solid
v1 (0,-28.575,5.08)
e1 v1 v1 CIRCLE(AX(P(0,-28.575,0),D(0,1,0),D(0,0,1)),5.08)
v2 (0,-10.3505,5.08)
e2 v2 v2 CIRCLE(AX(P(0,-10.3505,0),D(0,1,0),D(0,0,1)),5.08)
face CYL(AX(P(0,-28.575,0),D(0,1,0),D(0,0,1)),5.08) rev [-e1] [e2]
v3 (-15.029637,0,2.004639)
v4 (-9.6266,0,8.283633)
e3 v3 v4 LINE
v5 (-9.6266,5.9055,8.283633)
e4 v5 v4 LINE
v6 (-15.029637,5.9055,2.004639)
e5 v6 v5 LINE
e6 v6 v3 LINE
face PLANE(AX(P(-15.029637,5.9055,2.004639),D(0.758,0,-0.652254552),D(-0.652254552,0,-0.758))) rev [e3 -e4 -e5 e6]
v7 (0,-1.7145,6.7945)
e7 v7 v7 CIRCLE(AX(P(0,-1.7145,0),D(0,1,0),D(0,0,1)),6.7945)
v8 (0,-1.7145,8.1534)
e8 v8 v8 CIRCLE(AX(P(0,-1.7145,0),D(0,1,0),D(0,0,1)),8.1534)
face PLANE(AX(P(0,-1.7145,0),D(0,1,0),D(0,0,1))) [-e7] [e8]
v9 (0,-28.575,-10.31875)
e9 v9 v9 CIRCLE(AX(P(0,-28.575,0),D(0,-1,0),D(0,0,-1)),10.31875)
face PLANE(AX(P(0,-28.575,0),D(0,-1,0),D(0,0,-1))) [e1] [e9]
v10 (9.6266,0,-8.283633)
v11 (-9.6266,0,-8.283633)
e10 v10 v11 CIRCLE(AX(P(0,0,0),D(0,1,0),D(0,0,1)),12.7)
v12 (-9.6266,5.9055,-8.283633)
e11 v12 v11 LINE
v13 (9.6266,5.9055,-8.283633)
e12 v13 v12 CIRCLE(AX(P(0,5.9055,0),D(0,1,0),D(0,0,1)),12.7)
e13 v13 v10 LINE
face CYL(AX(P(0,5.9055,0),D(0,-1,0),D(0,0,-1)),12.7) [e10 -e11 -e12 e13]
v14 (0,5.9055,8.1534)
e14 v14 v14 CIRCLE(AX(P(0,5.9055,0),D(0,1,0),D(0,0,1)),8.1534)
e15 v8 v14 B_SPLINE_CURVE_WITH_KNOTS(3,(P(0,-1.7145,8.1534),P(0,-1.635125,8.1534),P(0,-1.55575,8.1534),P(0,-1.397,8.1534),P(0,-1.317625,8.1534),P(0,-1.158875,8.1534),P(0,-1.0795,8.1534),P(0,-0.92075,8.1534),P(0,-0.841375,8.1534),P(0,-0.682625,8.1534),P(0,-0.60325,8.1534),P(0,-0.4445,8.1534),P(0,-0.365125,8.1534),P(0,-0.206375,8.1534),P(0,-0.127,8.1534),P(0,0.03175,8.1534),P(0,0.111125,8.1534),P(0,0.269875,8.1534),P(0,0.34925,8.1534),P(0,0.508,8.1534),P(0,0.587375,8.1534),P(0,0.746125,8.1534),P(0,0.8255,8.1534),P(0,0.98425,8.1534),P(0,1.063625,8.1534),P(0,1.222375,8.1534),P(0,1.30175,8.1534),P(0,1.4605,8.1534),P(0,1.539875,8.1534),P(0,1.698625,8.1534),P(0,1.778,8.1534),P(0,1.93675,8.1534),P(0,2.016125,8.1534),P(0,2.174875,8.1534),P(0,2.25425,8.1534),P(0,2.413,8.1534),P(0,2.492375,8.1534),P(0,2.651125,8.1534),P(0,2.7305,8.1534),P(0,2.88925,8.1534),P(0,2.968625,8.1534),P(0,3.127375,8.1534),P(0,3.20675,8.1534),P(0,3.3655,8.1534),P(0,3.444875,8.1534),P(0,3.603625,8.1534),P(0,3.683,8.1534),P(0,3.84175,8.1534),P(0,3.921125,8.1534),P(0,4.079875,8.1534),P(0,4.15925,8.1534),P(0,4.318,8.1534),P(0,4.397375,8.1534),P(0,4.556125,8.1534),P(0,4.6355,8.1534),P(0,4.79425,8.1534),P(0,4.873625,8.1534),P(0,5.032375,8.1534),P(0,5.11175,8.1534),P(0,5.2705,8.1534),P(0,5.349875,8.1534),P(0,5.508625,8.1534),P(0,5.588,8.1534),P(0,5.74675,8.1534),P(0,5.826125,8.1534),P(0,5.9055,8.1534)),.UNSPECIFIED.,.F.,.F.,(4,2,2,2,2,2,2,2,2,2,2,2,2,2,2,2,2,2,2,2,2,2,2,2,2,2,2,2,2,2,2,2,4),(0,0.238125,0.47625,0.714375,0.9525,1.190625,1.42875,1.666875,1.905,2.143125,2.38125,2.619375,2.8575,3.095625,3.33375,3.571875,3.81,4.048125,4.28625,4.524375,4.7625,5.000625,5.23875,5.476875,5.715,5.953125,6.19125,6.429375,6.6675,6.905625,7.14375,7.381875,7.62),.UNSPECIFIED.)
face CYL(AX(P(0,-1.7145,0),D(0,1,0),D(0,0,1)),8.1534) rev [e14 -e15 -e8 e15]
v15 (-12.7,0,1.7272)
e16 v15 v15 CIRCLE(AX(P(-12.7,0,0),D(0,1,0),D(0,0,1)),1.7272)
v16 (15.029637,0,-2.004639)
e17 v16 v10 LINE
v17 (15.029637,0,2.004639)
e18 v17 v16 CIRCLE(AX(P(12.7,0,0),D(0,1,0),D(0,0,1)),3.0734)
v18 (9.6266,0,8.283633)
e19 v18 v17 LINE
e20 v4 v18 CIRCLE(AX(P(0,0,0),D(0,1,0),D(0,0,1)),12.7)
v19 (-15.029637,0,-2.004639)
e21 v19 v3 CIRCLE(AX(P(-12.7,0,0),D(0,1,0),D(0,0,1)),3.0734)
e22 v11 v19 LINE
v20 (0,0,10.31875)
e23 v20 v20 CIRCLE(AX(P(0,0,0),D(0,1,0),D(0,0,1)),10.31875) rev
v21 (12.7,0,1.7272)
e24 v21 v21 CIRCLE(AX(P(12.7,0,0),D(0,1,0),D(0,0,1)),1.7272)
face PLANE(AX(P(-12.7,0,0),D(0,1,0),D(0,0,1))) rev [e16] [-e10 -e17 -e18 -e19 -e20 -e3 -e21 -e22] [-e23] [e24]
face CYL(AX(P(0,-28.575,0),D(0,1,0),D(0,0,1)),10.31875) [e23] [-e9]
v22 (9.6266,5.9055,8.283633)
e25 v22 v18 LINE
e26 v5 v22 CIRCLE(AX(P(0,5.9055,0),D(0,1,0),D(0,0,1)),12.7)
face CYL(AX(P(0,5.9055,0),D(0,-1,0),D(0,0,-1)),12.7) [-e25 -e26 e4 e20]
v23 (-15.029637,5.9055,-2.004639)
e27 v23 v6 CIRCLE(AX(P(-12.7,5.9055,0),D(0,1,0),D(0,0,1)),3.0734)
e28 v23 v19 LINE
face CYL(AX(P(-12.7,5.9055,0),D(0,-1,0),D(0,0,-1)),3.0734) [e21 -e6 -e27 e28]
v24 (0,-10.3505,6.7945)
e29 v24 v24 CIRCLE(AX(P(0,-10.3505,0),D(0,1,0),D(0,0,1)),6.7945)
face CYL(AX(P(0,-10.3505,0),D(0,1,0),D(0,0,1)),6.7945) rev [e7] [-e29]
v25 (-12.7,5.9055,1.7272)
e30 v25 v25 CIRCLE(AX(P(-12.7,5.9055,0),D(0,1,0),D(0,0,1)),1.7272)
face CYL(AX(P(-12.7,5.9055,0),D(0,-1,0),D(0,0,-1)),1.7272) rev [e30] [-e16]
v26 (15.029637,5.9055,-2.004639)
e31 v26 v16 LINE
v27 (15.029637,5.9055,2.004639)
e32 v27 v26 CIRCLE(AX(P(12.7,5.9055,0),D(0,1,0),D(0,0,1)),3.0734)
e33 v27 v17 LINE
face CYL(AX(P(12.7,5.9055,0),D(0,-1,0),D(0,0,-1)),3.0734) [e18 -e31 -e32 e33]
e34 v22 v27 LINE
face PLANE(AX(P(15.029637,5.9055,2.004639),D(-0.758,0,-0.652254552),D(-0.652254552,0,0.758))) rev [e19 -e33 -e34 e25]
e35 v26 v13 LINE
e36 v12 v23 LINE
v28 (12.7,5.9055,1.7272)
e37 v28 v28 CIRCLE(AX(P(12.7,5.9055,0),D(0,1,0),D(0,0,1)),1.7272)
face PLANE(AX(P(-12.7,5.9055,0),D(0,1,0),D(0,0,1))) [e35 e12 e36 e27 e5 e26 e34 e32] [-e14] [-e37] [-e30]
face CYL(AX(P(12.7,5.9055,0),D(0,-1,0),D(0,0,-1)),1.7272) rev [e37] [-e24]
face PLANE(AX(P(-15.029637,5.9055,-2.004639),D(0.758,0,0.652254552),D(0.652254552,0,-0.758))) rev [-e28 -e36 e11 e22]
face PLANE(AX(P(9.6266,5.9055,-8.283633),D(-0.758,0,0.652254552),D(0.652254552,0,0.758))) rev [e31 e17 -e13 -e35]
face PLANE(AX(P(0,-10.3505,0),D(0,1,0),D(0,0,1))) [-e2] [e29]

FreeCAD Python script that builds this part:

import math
import FreeCAD as App
import Part
import Sketcher

V = App.Vector
Q = App.Units.Quantity

doc = App.newDocument("Part")
params = doc.addObject("Spreadsheet::Sheet", "Params")
for row, (alias, value) in enumerate([
    ("sketch1_radius", "0.5 in"),
    ("sketch1_diameter", "0.136 in"),
    ("sketch1_radius2", "0.121 in"),
    ("pad1_length", "0.2325 in"),
    ("sketch2_diameter", "0.8125 in"),
    ("pad2_length", "1.125 in"),
    ("sketch3_diameter", "0.642 in"),
    ("pocket1_length", "0.3 in"),
    ("sketch4_diameter", "0.535 in"),
    ("pocket2_length", "0.64 in"),
    ("sketch5_diameter", "0.4 in"),
], start=1):
    params.set(f"A{row}", alias)
    params.set(f"B{row}", "=" + value)
    params.setAlias(f"B{row}", alias)

body = doc.addObject("PartDesign::Body", "Body")

sketch1 = body.newObject("Sketcher::SketchObject", "Sketch")
sketch1.AttachmentSupport = (doc.getObject("XZ_Plane"), [""])
sketch1.MapMode = "FlatFace"
sketch1.addGeometry([
    Part.LineSegment(V(-9.6266, -8.283633, 0), V(-15.029637, -2.004639, 0)),
    Part.ArcOfCircle(Part.Circle(V(-12.7, 0, 0), V(0, 0, 1), 3.0734), math.radians(139.288198), math.radians(220.711802)),
    Part.LineSegment(V(-15.029637, 2.004639, 0), V(-9.6266, 8.283633, 0)),
    Part.ArcOfCircle(Part.Circle(V(0, 0, 0), V(0, 0, 1), 12.7), math.radians(40.711802), math.radians(139.288198)),
    Part.LineSegment(V(9.6266, 8.283633, 0), V(15.029637, 2.004639, 0)),
    Part.ArcOfCircle(Part.Circle(V(12.7, 0, 0), V(0, 0, 1), 3.0734), math.radians(-40.711802), math.radians(40.711802)),
    Part.LineSegment(V(15.029637, -2.004639, 0), V(9.6266, -8.283633, 0)),
    Part.ArcOfCircle(Part.Circle(V(0, 0, 0), V(0, 0, 1), 12.7), math.radians(-139.288198), math.radians(-40.711802)),
    Part.Circle(V(12.7, 0, 0), V(0, 0, 1), 1.7272),
    Part.Circle(V(-12.7, 0, 0), V(0, 0, 1), 1.7272),
], False)
sketch1.addConstraint([
    Sketcher.Constraint("Tangent", 0, 2, 1, 2),
    Sketcher.Constraint("Tangent", 1, 1, 2, 1),
    Sketcher.Constraint("Tangent", 2, 2, 3, 2),
    Sketcher.Constraint("Tangent", 3, 1, 4, 1),
    Sketcher.Constraint("Tangent", 4, 2, 5, 2),
    Sketcher.Constraint("Tangent", 5, 1, 6, 1),
    Sketcher.Constraint("Tangent", 6, 2, 7, 2),
    Sketcher.Constraint("Tangent", 7, 1, 0, 1),
    Sketcher.Constraint("Coincident", 3, 3, -1, 1),
    Sketcher.Constraint("Coincident", 7, 3, -1, 1),
    Sketcher.Constraint("Coincident", 8, 3, 5, 3),
    Sketcher.Constraint("Coincident", 9, 3, 1, 3),
    Sketcher.Constraint("Equal", 1, 5),
    Sketcher.Constraint("Equal", 3, 7),
    Sketcher.Constraint("Equal", 8, 9),
    Sketcher.Constraint("Symmetric", 1, 3, 5, 3, -1, 1),
    Sketcher.Constraint("PointOnObject", 1, 3, -1),
    Sketcher.Constraint("Radius", 3, Q("0.5 in")),
    Sketcher.Constraint("Diameter", 8, Q("0.136 in")),
    Sketcher.Constraint("Radius", 1, Q("0.121 in")),
    Sketcher.Constraint("DistanceX", 1, 3, 5, 3, Q("1 in")),
])
sketch1.setExpression("Constraints[17]", "Params.sketch1_radius")
sketch1.setExpression("Constraints[18]", "Params.sketch1_diameter")
sketch1.setExpression("Constraints[19]", "Params.sketch1_radius2")
pad1 = body.newObject("PartDesign::Pad", "Pad")
pad1.Profile = sketch1
pad1.setExpression("Length", "Params.pad1_length")
pad1.Reversed = True

sketch2 = body.newObject("Sketcher::SketchObject", "Sketch001")
sketch2.AttachmentSupport = (doc.getObject("XZ_Plane"), [""])
sketch2.MapMode = "FlatFace"
sketch2.addGeometry(Part.Circle(V(0, 0, 0), V(0, 0, 1), 10.31875), False)
sketch2.addConstraint([
    Sketcher.Constraint("Coincident", 0, 3, -1, 1),
    Sketcher.Constraint("Diameter", 0, Q("0.8125 in")),
])
sketch2.setExpression("Constraints[1]", "Params.sketch2_diameter")
pad2 = body.newObject("PartDesign::Pad", "Pad001")
pad2.Profile = sketch2
pad2.setExpression("Length", "Params.pad2_length")

sketch3 = body.newObject("Sketcher::SketchObject", "Sketch002")
sketch3.AttachmentSupport = (doc.getObject("XZ_Plane"), [""])
sketch3.MapMode = "FlatFace"
sketch3.AttachmentOffset = App.Placement(V(0, 0, -0.2325 * 25.4), App.Rotation())
sketch3.addGeometry(Part.Circle(V(0, 0, 0), V(0, 0, 1), 8.1534), False)
sketch3.addConstraint([
    Sketcher.Constraint("Coincident", 0, 3, -1, 1),
    Sketcher.Constraint("Diameter", 0, Q("0.642 in")),
])
sketch3.setExpression("Constraints[1]", "Params.sketch3_diameter")
pocket1 = body.newObject("PartDesign::Pocket", "Pocket")
pocket1.Profile = sketch3
pocket1.setExpression("Length", "Params.pocket1_length")
pocket1.Reversed = True

sketch4 = body.newObject("Sketcher::SketchObject", "Sketch003")
sketch4.AttachmentSupport = (doc.getObject("XZ_Plane"), [""])
sketch4.MapMode = "FlatFace"
sketch4.AttachmentOffset = App.Placement(V(0, 0, -0.2325 * 25.4), App.Rotation())
sketch4.addGeometry(Part.Circle(V(0, 0, 0), V(0, 0, 1), 6.7945), False)
sketch4.addConstraint([
    Sketcher.Constraint("Coincident", 0, 3, -1, 1),
    Sketcher.Constraint("Diameter", 0, Q("0.535 in")),
])
sketch4.setExpression("Constraints[1]", "Params.sketch4_diameter")
pocket2 = body.newObject("PartDesign::Pocket", "Pocket001")
pocket2.Profile = sketch4
pocket2.setExpression("Length", "Params.pocket2_length")
pocket2.Reversed = True

sketch5 = body.newObject("Sketcher::SketchObject", "Sketch004")
sketch5.AttachmentSupport = (doc.getObject("XZ_Plane"), [""])
sketch5.MapMode = "FlatFace"
sketch5.AttachmentOffset = App.Placement(V(0, 0, -0.2325 * 25.4), App.Rotation())
sketch5.addGeometry(Part.Circle(V(0, 0, 0), V(0, 0, 1), 5.08), False)
sketch5.addConstraint([
    Sketcher.Constraint("Coincident", 0, 3, -1, 1),
    Sketcher.Constraint("Diameter", 0, Q("0.4 in")),
])
sketch5.setExpression("Constraints[1]", "Params.sketch5_diameter")
pocket3 = body.newObject("PartDesign::Pocket", "Pocket002")
pocket3.Profile = sketch5
pocket3.Type = "ThroughAll"
pocket3.Reversed = True

doc.recompute()
